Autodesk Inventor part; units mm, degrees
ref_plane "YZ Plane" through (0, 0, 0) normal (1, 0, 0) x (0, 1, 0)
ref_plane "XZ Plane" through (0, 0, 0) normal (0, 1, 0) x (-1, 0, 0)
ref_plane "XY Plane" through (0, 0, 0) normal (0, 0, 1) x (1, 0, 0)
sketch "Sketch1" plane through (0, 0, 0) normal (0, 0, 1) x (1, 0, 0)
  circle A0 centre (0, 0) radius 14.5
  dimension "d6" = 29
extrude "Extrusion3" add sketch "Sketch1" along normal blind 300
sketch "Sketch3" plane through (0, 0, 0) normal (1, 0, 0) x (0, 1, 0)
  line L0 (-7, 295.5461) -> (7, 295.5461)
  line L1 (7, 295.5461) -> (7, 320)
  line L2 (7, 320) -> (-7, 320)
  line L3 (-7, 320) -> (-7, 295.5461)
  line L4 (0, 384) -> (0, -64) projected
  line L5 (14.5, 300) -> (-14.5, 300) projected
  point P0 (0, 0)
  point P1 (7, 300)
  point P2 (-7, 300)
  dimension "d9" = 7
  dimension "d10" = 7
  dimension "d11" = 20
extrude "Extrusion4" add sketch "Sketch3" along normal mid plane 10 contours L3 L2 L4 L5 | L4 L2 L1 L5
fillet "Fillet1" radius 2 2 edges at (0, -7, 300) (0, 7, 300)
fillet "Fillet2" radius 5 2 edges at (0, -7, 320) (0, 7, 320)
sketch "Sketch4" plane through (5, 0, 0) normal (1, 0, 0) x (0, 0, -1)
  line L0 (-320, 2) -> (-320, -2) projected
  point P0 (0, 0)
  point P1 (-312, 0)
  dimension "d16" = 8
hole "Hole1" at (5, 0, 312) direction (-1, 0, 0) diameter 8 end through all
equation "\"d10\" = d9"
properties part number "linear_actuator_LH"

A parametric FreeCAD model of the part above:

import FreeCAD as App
import Part
import Sketcher
from FreeCAD import Vector


def edges_at(feature, points):
    """Names of the edges that pass closest to the given points."""
    edges = feature.Shape.Edges
    near = lambda p: min(range(len(edges)), key=lambda i: edges[i].distToShape(Part.Vertex(*p))[0])
    return sorted({f"Edge{near(p) + 1}" for p in points})


def add_polygon(sketch, points):
    """Adds a closed chain of lines whose ends are joined by coincident constraints."""
    first, n = sketch.GeometryCount, len(points)
    for a, b in zip(points, points[1:] + points[:1]):
        sketch.addGeometry(Part.LineSegment(App.Vector(*a, 0), App.Vector(*b, 0)), False)
    for i in range(n):
        sketch.addConstraint(Sketcher.Constraint("Coincident", first + i, 2, first + (i + 1) % n, 1))

doc = App.newDocument("Part")
body = doc.addObject("PartDesign::Body", "Body")

# Sketch on XY plane
sketch1 = body.newObject("Sketcher::SketchObject", "Sketch")
sketch1.AttachmentSupport = (doc.getObject("XY_Plane"), [""])
sketch1.MapMode = "FlatFace"
sketch1.addGeometry(Part.Circle(Vector(0, 0, 0), Vector(0, 0, 1), 14.5), False)
sketch1.addConstraint([
    Sketcher.Constraint("Coincident", 0, 3, -1, 1),
    Sketcher.Constraint("Diameter", 0, 29.0),
])
pad1 = body.newObject("PartDesign::Pad", "Pad")
pad1.Profile = sketch1
pad1.Length = 300

# Sketch on YZ plane
sketch2 = body.newObject("Sketcher::SketchObject", "Sketch001")
sketch2.AttachmentSupport = (doc.getObject("YZ_Plane"), [""])
sketch2.MapMode = "FlatFace"
add_polygon(sketch2, [(-7, 320), (-7, 300), (7, 300), (7, 320)])  # lines 0-3
sketch2.addConstraint([
    Sketcher.Constraint("Vertical", 0),
    Sketcher.Constraint("Horizontal", 1),
    Sketcher.Constraint("Vertical", 2),
    Sketcher.Constraint("Horizontal", 3),
    Sketcher.Constraint("DistanceY", 0, 2, 0, 1, 20.0),
    Sketcher.Constraint("DistanceX", 0, 2, -1, 1, 7.0),
    Sketcher.Constraint("DistanceX", -1, 1, 1, 2, 7.0),
    Sketcher.Constraint("DistanceY", -1, 1, 0, 2, 300.0),
])
pad2 = body.newObject("PartDesign::Pad", "Pad001")
pad2.Profile = sketch2
pad2.Length = 10
pad2.Midplane = True
doc.recompute()

fillet = body.newObject("PartDesign::Fillet", "Fillet")
fillet.Base = (pad2, edges_at(pad2, [(0, -7, 300), (0, 7, 300)]))
fillet.Radius = 2
doc.recompute()

fillet2 = body.newObject("PartDesign::Fillet", "Fillet001")
fillet2.Base = (fillet, edges_at(fillet, [(0, -7, 320), (0, 7, 320)]))
fillet2.Radius = 5

# Sketch on YZ plane
sketch3 = body.newObject("Sketcher::SketchObject", "Sketch002")
sketch3.AttachmentSupport = (doc.getObject("YZ_Plane"), [""])
sketch3.MapMode = "FlatFace"
sketch3.AttachmentOffset = App.Placement(Vector(0, 0, 5), App.Rotation())
sketch3.addGeometry(Part.Circle(Vector(0, 312, 0), Vector(0, 0, 1), 4), False)
sketch3.addConstraint([
    Sketcher.Constraint("PointOnObject", 0, 3, -2),
    Sketcher.Constraint("Diameter", 0, 8.0),
    Sketcher.Constraint("DistanceY", -1, 1, 0, 3, 312.0),
])
doc.recompute()
hole = body.newObject("PartDesign::Hole", "Hole")
hole.Profile = sketch3
hole.ThreadType = "None"
hole.Diameter = 8
hole.DepthType = "ThroughAll"

doc.recompute()
